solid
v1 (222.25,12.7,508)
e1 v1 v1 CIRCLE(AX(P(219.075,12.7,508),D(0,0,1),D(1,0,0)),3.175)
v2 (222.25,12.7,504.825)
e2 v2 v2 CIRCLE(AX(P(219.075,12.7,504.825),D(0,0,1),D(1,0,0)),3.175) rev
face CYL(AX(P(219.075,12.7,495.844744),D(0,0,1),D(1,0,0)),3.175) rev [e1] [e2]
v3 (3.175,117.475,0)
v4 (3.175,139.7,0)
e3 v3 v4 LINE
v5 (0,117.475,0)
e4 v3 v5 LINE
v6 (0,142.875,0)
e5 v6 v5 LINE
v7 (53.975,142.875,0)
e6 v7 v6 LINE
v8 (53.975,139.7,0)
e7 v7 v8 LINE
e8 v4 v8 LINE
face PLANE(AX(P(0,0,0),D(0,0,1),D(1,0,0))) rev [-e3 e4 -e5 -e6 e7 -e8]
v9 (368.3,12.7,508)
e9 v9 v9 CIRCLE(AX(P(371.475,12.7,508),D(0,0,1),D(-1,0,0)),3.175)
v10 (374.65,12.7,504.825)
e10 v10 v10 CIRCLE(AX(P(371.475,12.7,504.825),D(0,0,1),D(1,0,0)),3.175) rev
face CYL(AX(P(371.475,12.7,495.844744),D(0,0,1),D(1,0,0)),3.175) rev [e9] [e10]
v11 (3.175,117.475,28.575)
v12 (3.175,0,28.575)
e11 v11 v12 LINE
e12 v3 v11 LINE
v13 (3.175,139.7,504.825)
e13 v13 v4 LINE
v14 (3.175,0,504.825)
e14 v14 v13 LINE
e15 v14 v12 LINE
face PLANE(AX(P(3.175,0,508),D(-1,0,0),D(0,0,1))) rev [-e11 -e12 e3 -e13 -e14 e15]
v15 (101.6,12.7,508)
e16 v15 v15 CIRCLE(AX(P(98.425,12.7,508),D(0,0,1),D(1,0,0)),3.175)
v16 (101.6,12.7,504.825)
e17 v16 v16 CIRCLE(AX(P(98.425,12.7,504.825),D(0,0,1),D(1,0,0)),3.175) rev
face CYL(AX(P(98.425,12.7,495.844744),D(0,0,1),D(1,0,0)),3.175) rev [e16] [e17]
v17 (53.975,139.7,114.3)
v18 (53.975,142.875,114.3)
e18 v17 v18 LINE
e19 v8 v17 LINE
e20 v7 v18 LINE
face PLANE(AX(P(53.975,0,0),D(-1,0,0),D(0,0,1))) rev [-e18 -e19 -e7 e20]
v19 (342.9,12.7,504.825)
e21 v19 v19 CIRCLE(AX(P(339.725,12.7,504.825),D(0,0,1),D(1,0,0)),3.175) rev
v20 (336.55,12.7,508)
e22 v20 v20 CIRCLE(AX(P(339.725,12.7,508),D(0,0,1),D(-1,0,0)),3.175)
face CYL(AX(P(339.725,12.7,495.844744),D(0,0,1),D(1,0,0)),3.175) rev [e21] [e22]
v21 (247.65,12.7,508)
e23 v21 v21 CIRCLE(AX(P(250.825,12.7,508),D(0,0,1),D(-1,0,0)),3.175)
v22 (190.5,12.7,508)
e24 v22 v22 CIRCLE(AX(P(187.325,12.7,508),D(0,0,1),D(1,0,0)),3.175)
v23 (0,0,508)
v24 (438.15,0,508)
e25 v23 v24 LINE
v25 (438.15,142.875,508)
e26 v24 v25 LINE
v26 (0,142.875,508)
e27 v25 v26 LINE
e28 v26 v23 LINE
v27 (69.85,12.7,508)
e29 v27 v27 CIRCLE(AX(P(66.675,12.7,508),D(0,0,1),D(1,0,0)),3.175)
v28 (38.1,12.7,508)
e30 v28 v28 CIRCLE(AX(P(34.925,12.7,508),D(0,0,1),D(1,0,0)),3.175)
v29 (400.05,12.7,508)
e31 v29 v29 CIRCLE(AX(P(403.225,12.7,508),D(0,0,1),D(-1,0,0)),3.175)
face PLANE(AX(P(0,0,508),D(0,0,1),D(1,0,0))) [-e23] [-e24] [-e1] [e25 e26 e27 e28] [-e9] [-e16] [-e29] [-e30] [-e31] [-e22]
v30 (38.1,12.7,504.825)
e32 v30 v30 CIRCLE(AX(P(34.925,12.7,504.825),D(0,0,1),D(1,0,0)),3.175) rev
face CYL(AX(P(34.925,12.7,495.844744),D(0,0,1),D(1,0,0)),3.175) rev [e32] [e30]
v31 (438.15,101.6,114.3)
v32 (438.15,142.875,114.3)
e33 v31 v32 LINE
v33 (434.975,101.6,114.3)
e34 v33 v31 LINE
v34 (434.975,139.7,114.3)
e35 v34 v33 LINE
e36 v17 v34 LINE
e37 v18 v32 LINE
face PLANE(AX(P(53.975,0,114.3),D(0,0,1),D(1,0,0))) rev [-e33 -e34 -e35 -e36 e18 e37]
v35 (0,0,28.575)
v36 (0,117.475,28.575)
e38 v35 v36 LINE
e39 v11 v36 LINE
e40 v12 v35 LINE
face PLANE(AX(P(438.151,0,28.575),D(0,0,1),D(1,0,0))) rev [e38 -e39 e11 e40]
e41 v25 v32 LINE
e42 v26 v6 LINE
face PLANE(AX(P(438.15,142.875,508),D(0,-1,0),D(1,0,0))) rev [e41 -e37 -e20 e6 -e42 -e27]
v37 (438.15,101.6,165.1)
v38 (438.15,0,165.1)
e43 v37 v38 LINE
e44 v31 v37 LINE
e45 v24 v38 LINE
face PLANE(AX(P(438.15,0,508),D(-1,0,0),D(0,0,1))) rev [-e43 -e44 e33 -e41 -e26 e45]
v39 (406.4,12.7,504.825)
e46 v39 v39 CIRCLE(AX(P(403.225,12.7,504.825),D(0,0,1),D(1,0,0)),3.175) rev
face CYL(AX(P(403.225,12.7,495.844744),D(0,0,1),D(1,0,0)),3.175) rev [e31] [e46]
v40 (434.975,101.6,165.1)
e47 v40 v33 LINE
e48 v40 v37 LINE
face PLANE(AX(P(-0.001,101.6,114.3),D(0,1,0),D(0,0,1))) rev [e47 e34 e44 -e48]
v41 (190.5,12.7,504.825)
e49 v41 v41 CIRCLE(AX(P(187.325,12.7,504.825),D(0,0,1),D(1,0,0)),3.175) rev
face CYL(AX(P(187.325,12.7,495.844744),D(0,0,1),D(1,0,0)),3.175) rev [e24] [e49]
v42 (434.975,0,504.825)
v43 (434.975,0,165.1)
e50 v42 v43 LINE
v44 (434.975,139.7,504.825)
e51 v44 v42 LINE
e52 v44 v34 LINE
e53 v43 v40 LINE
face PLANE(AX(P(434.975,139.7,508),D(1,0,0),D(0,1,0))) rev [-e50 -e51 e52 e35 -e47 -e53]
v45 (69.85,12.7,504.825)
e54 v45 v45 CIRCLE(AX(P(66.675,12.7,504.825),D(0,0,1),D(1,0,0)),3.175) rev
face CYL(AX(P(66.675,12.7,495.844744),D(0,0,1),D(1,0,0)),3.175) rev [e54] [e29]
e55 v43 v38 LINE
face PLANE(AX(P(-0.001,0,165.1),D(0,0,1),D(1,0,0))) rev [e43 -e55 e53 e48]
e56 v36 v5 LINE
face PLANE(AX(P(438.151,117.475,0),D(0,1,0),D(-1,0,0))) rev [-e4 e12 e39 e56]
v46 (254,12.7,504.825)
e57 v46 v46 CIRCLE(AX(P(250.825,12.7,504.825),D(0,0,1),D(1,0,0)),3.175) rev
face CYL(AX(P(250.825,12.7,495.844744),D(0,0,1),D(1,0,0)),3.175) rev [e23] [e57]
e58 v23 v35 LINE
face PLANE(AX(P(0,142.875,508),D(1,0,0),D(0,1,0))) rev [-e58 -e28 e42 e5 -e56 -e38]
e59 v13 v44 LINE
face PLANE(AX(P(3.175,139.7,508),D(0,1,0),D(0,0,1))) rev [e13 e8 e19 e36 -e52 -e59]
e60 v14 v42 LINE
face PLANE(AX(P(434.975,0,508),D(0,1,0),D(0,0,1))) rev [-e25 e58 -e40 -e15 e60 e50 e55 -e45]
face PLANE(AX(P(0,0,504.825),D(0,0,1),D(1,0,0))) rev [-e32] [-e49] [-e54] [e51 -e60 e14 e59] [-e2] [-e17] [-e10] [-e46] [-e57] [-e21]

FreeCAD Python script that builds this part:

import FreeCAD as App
import Part
import Sketcher
from FreeCAD import Vector
Q = App.Units.Quantity


def add_polygon(sketch, points):
    """Adds a closed chain of lines whose ends are joined by coincident constraints."""
    first, n = sketch.GeometryCount, len(points)
    for a, b in zip(points, points[1:] + points[:1]):
        sketch.addGeometry(Part.LineSegment(App.Vector(*a, 0), App.Vector(*b, 0)), False)
    for i in range(n):
        sketch.addConstraint(Sketcher.Constraint("Coincident", first + i, 2, first + (i + 1) % n, 1))

doc = App.newDocument("Part")
body = doc.addObject("PartDesign::Body", "Body")

# Sketch on XY plane
sketch1 = doc.addObject("Sketcher::SketchObject", "Sketch")
body.addObject(sketch1)
sketch1.AttachmentSupport = (doc.XY_Plane, [""])
sketch1.MapMode = "FlatFace"
add_polygon(sketch1, [(0, 0), (3.2, 0), (3.2, 139.7), (435, 139.7), (435, 0), (438.1, 0), (438.1, 142.9), (0, 142.9)])  # lines 0-7
sketch1.addConstraint(Sketcher.Constraint("Horizontal", 0))
sketch1.addConstraint(Sketcher.Constraint("Vertical", 1))
sketch1.addConstraint(Sketcher.Constraint("Horizontal", 2))
sketch1.addConstraint(Sketcher.Constraint("Vertical", 3))
sketch1.addConstraint(Sketcher.Constraint("Horizontal", 4))
sketch1.addConstraint(Sketcher.Constraint("Vertical", 5))
sketch1.addConstraint(Sketcher.Constraint("Horizontal", 6))
sketch1.addConstraint(Sketcher.Constraint("Vertical", 7))
sketch1.addConstraint(Sketcher.Constraint("Coincident", 7, 2, -1, 1))
sketch1.addConstraint(Sketcher.Constraint("PointOnObject", 3, 2, -1))
sketch1.addConstraint(Sketcher.Constraint("Equal", 0, 4))
sketch1.addConstraint(Sketcher.Constraint("DistanceX", 2, 1, 2, 2, Q("17 in")))
sketch1.addConstraint(Sketcher.Constraint("DistanceY", 1, 1, 1, 2, Q("5.5 in")))
sketch1.addConstraint(Sketcher.Constraint("DistanceX", 6, 2, 6, 1, Q("17.25 in")))
sketch1.addConstraint(Sketcher.Constraint("DistanceY", 5, 1, 5, 2, Q("5.625 in")))
pad1 = doc.addObject("PartDesign::Pad", "Pad")
body.addObject(pad1)
pad1.Profile = sketch1
pad1.Length = Q("20 in")

# Sketch on XY plane
sketch2 = doc.addObject("Sketcher::SketchObject", "Sketch001")
body.addObject(sketch2)
sketch2.AttachmentSupport = (doc.XY_Plane, [""])
sketch2.MapMode = "FlatFace"
sketch2.AttachmentOffset = App.Placement(Vector(0, 0, 20 * 25.4), App.Rotation())
add_polygon(sketch2, [(0, 143), (0, 0), (438, 0), (438, 143)])  # lines 0-3
sketch2.addConstraint(Sketcher.Constraint("Vertical", 0))
sketch2.addConstraint(Sketcher.Constraint("Horizontal", 1))
sketch2.addConstraint(Sketcher.Constraint("Vertical", 2))
sketch2.addConstraint(Sketcher.Constraint("Horizontal", 3))
sketch2.addConstraint(Sketcher.Constraint("Coincident", 0, 2, -1, 1))
sketch2.addConstraint(Sketcher.Constraint("DistanceX", 1, 1, 1, 2, Q("17.25 in")))
sketch2.addConstraint(Sketcher.Constraint("DistanceY", 0, 2, 0, 1, Q("5.625 in")))
pad2 = doc.addObject("PartDesign::Pad", "Pad001")
body.addObject(pad2)
pad2.Profile = sketch2
pad2.Length = Q("0.125 in")
pad2.Reversed = True

# Sketch on XZ plane
sketch3 = doc.addObject("Sketcher::SketchObject", "Sketch002")
body.addObject(sketch3)
sketch3.AttachmentSupport = (doc.XZ_Plane, [""])
sketch3.MapMode = "FlatFace"
sketch3.AttachmentOffset = App.Placement(Vector(0, 0, -5.625 * 25.4), App.Rotation())
add_polygon(sketch3, [(54, 0), (54, 114), (438, 114), (438, 0)])  # lines 0-3
sketch3.addConstraint(Sketcher.Constraint("Vertical", 0))
sketch3.addConstraint(Sketcher.Constraint("Horizontal", 1))
sketch3.addConstraint(Sketcher.Constraint("Vertical", 2))
sketch3.addConstraint(Sketcher.Constraint("Horizontal", 3))
sketch3.addConstraint(Sketcher.Constraint("PointOnObject", 2, 2, -1))
sketch3.addConstraint(Sketcher.Constraint("DistanceY", 0, 1, 0, 2, Q("4.5 in")))
sketch3.addConstraint(Sketcher.Constraint("DistanceX", 1, 1, 1, 2, Q("15.125 in")))
sketch3.addConstraint(Sketcher.Constraint("DistanceX", -1, 1, 1, 2, Q("17.25 in")))
pocket1 = doc.addObject("PartDesign::Pocket", "Pocket")
body.addObject(pocket1)
pocket1.Profile = sketch3
pocket1.Type = "ThroughAll"
pocket1.Reversed = True

# Sketch on YZ plane
sketch4 = doc.addObject("Sketcher::SketchObject", "Sketch003")
body.addObject(sketch4)
sketch4.AttachmentSupport = (doc.YZ_Plane, [""])
sketch4.MapMode = "FlatFace"
sketch4.AttachmentOffset = App.Placement(Vector(0, 0, 17.25 * 25.4), App.Rotation())
add_polygon(sketch4, [(102, 165), (0, 165), (0, 114), (102, 114)])  # lines 0-3
sketch4.addConstraint(Sketcher.Constraint("Horizontal", 0))
sketch4.addConstraint(Sketcher.Constraint("Vertical", 1))
sketch4.addConstraint(Sketcher.Constraint("Horizontal", 2))
sketch4.addConstraint(Sketcher.Constraint("Vertical", 3))
sketch4.addConstraint(Sketcher.Constraint("PointOnObject", 0, 2, -2))
sketch4.addConstraint(Sketcher.Constraint("DistanceX", 0, 2, 0, 1, Q("4 in")))
sketch4.addConstraint(Sketcher.Constraint("DistanceY", 1, 2, 1, 1, Q("2 in")))
sketch4.addConstraint(Sketcher.Constraint("DistanceY", -1, 1, 0, 2, Q("6.5 in")))
pocket2 = doc.addObject("PartDesign::Pocket", "Pocket001")
body.addObject(pocket2)
pocket2.Profile = sketch4
pocket2.Type = "UpToFirst"

# Sketch on YZ plane
sketch5 = doc.addObject("Sketcher::SketchObject", "Sketch004")
body.addObject(sketch5)
sketch5.AttachmentSupport = (doc.YZ_Plane, [""])
sketch5.MapMode = "FlatFace"
add_polygon(sketch5, [(117, 0), (0, 0), (0, 29), (117, 29)])  # lines 0-3
sketch5.addConstraint(Sketcher.Constraint("Horizontal", 0))
sketch5.addConstraint(Sketcher.Constraint("Vertical", 1))
sketch5.addConstraint(Sketcher.Constraint("Horizontal", 2))
sketch5.addConstraint(Sketcher.Constraint("Vertical", 3))
sketch5.addConstraint(Sketcher.Constraint("Coincident", 0, 2, -1, 1))
sketch5.addConstraint(Sketcher.Constraint("DistanceX", 0, 2, 0, 1, Q("4.625 in")))
sketch5.addConstraint(Sketcher.Constraint("DistanceY", 1, 1, 1, 2, Q("1.125 in")))
pocket3 = doc.addObject("PartDesign::Pocket", "Pocket002")
body.addObject(pocket3)
pocket3.Profile = sketch5
pocket3.Type = "UpToFirst"
pocket3.Reversed = True

# Sketch on XY plane
sketch6 = doc.addObject("Sketcher::SketchObject", "Sketch005")
body.addObject(sketch6)
sketch6.AttachmentSupport = (doc.XY_Plane, [""])
sketch6.MapMode = "FlatFace"
sketch6.AttachmentOffset = App.Placement(Vector(0, 0, 20 * 25.4), App.Rotation())
sketch6.addGeometry(Part.Circle(Vector(219.1, 12.7, 0), Vector(0, 0, 1), 3.2), False)
sketch6.addGeometry(Part.Circle(Vector(187.3, 12.7, 0), Vector(0, 0, 1), 3.2), False)
sketch6.addGeometry(Part.Circle(Vector(34.9, 12.7, 0), Vector(0, 0, 1), 3.2), False)
sketch6.addGeometry(Part.Circle(Vector(66.7, 12.7, 0), Vector(0, 0, 1), 3.2), False)
sketch6.addGeometry(Part.Circle(Vector(98.4, 12.7, 0), Vector(0, 0, 1), 3.2), False)
sketch6.addGeometry(Part.Circle(Vector(250.8, 12.7, 0), Vector(0, 0, 1), 3.2), False)
sketch6.addGeometry(Part.Circle(Vector(339.7, 12.7, 0), Vector(0, 0, 1), 3.2), False)
sketch6.addGeometry(Part.Circle(Vector(371.5, 12.7, 0), Vector(0, 0, 1), 3.2), False)
sketch6.addGeometry(Part.Circle(Vector(403.2, 12.7, 0), Vector(0, 0, 1), 3.2), False)
sketch6.addConstraint(Sketcher.Constraint("Equal", 0, 1))
sketch6.addConstraint(Sketcher.Constraint("Equal", 1, 2))
sketch6.addConstraint(Sketcher.Constraint("Equal", 2, 3))
sketch6.addConstraint(Sketcher.Constraint("Equal", 3, 4))
sketch6.addConstraint(Sketcher.Constraint("Equal", 4, 5))
sketch6.addConstraint(Sketcher.Constraint("Equal", 5, 6))
sketch6.addConstraint(Sketcher.Constraint("Equal", 6, 7))
sketch6.addConstraint(Sketcher.Constraint("Equal", 7, 8))
sketch6.addConstraint(Sketcher.Constraint("Horizontal", 0, 3, 1, 3))
sketch6.addConstraint(Sketcher.Constraint("Horizontal", 1, 3, 2, 3))
sketch6.addConstraint(Sketcher.Constraint("Horizontal", 2, 3, 3, 3))
sketch6.addConstraint(Sketcher.Constraint("Horizontal", 3, 3, 4, 3))
sketch6.addConstraint(Sketcher.Constraint("Horizontal", 4, 3, 5, 3))
sketch6.addConstraint(Sketcher.Constraint("Horizontal", 5, 3, 6, 3))
sketch6.addConstraint(Sketcher.Constraint("Horizontal", 6, 3, 7, 3))
sketch6.addConstraint(Sketcher.Constraint("Horizontal", 7, 3, 8, 3))
sketch6.addConstraint(Sketcher.Constraint("Diameter", 0, Q("0.25 in")))
sketch6.addConstraint(Sketcher.Constraint("DistanceX", 2, 3, 1, 3, Q("6 in")))
sketch6.addConstraint(Sketcher.Constraint("DistanceX", 3, 3, 0, 3, Q("6 in")))
sketch6.addConstraint(Sketcher.Constraint("DistanceX", 4, 3, 5, 3, Q("6 in")))
sketch6.addConstraint(Sketcher.Constraint("DistanceX", 1, 3, 6, 3, Q("6 in")))
sketch6.addConstraint(Sketcher.Constraint("DistanceX", 0, 3, 7, 3, Q("6 in")))
sketch6.addConstraint(Sketcher.Constraint("DistanceX", 5, 3, 8, 3, Q("6 in")))
sketch6.addConstraint(Sketcher.Constraint("DistanceY", -1, 1, 0, 3, Q("0.5 in")))
sketch6.addConstraint(Sketcher.Constraint("DistanceX", 2, 3, 4, 3, Q("2.5 in")))
sketch6.addConstraint(Sketcher.Constraint("DistanceX", 1, 3, 0, 3, Q("1.25 in")))
sketch6.addConstraint(Sketcher.Constraint("DistanceX", -1, 1, 0, 3, Q("8.625 in")))
pocket4 = doc.addObject("PartDesign::Pocket", "Pocket003")
body.addObject(pocket4)
pocket4.Profile = sketch6
pocket4.Length = Q("0.125 in")

doc.recompute()
